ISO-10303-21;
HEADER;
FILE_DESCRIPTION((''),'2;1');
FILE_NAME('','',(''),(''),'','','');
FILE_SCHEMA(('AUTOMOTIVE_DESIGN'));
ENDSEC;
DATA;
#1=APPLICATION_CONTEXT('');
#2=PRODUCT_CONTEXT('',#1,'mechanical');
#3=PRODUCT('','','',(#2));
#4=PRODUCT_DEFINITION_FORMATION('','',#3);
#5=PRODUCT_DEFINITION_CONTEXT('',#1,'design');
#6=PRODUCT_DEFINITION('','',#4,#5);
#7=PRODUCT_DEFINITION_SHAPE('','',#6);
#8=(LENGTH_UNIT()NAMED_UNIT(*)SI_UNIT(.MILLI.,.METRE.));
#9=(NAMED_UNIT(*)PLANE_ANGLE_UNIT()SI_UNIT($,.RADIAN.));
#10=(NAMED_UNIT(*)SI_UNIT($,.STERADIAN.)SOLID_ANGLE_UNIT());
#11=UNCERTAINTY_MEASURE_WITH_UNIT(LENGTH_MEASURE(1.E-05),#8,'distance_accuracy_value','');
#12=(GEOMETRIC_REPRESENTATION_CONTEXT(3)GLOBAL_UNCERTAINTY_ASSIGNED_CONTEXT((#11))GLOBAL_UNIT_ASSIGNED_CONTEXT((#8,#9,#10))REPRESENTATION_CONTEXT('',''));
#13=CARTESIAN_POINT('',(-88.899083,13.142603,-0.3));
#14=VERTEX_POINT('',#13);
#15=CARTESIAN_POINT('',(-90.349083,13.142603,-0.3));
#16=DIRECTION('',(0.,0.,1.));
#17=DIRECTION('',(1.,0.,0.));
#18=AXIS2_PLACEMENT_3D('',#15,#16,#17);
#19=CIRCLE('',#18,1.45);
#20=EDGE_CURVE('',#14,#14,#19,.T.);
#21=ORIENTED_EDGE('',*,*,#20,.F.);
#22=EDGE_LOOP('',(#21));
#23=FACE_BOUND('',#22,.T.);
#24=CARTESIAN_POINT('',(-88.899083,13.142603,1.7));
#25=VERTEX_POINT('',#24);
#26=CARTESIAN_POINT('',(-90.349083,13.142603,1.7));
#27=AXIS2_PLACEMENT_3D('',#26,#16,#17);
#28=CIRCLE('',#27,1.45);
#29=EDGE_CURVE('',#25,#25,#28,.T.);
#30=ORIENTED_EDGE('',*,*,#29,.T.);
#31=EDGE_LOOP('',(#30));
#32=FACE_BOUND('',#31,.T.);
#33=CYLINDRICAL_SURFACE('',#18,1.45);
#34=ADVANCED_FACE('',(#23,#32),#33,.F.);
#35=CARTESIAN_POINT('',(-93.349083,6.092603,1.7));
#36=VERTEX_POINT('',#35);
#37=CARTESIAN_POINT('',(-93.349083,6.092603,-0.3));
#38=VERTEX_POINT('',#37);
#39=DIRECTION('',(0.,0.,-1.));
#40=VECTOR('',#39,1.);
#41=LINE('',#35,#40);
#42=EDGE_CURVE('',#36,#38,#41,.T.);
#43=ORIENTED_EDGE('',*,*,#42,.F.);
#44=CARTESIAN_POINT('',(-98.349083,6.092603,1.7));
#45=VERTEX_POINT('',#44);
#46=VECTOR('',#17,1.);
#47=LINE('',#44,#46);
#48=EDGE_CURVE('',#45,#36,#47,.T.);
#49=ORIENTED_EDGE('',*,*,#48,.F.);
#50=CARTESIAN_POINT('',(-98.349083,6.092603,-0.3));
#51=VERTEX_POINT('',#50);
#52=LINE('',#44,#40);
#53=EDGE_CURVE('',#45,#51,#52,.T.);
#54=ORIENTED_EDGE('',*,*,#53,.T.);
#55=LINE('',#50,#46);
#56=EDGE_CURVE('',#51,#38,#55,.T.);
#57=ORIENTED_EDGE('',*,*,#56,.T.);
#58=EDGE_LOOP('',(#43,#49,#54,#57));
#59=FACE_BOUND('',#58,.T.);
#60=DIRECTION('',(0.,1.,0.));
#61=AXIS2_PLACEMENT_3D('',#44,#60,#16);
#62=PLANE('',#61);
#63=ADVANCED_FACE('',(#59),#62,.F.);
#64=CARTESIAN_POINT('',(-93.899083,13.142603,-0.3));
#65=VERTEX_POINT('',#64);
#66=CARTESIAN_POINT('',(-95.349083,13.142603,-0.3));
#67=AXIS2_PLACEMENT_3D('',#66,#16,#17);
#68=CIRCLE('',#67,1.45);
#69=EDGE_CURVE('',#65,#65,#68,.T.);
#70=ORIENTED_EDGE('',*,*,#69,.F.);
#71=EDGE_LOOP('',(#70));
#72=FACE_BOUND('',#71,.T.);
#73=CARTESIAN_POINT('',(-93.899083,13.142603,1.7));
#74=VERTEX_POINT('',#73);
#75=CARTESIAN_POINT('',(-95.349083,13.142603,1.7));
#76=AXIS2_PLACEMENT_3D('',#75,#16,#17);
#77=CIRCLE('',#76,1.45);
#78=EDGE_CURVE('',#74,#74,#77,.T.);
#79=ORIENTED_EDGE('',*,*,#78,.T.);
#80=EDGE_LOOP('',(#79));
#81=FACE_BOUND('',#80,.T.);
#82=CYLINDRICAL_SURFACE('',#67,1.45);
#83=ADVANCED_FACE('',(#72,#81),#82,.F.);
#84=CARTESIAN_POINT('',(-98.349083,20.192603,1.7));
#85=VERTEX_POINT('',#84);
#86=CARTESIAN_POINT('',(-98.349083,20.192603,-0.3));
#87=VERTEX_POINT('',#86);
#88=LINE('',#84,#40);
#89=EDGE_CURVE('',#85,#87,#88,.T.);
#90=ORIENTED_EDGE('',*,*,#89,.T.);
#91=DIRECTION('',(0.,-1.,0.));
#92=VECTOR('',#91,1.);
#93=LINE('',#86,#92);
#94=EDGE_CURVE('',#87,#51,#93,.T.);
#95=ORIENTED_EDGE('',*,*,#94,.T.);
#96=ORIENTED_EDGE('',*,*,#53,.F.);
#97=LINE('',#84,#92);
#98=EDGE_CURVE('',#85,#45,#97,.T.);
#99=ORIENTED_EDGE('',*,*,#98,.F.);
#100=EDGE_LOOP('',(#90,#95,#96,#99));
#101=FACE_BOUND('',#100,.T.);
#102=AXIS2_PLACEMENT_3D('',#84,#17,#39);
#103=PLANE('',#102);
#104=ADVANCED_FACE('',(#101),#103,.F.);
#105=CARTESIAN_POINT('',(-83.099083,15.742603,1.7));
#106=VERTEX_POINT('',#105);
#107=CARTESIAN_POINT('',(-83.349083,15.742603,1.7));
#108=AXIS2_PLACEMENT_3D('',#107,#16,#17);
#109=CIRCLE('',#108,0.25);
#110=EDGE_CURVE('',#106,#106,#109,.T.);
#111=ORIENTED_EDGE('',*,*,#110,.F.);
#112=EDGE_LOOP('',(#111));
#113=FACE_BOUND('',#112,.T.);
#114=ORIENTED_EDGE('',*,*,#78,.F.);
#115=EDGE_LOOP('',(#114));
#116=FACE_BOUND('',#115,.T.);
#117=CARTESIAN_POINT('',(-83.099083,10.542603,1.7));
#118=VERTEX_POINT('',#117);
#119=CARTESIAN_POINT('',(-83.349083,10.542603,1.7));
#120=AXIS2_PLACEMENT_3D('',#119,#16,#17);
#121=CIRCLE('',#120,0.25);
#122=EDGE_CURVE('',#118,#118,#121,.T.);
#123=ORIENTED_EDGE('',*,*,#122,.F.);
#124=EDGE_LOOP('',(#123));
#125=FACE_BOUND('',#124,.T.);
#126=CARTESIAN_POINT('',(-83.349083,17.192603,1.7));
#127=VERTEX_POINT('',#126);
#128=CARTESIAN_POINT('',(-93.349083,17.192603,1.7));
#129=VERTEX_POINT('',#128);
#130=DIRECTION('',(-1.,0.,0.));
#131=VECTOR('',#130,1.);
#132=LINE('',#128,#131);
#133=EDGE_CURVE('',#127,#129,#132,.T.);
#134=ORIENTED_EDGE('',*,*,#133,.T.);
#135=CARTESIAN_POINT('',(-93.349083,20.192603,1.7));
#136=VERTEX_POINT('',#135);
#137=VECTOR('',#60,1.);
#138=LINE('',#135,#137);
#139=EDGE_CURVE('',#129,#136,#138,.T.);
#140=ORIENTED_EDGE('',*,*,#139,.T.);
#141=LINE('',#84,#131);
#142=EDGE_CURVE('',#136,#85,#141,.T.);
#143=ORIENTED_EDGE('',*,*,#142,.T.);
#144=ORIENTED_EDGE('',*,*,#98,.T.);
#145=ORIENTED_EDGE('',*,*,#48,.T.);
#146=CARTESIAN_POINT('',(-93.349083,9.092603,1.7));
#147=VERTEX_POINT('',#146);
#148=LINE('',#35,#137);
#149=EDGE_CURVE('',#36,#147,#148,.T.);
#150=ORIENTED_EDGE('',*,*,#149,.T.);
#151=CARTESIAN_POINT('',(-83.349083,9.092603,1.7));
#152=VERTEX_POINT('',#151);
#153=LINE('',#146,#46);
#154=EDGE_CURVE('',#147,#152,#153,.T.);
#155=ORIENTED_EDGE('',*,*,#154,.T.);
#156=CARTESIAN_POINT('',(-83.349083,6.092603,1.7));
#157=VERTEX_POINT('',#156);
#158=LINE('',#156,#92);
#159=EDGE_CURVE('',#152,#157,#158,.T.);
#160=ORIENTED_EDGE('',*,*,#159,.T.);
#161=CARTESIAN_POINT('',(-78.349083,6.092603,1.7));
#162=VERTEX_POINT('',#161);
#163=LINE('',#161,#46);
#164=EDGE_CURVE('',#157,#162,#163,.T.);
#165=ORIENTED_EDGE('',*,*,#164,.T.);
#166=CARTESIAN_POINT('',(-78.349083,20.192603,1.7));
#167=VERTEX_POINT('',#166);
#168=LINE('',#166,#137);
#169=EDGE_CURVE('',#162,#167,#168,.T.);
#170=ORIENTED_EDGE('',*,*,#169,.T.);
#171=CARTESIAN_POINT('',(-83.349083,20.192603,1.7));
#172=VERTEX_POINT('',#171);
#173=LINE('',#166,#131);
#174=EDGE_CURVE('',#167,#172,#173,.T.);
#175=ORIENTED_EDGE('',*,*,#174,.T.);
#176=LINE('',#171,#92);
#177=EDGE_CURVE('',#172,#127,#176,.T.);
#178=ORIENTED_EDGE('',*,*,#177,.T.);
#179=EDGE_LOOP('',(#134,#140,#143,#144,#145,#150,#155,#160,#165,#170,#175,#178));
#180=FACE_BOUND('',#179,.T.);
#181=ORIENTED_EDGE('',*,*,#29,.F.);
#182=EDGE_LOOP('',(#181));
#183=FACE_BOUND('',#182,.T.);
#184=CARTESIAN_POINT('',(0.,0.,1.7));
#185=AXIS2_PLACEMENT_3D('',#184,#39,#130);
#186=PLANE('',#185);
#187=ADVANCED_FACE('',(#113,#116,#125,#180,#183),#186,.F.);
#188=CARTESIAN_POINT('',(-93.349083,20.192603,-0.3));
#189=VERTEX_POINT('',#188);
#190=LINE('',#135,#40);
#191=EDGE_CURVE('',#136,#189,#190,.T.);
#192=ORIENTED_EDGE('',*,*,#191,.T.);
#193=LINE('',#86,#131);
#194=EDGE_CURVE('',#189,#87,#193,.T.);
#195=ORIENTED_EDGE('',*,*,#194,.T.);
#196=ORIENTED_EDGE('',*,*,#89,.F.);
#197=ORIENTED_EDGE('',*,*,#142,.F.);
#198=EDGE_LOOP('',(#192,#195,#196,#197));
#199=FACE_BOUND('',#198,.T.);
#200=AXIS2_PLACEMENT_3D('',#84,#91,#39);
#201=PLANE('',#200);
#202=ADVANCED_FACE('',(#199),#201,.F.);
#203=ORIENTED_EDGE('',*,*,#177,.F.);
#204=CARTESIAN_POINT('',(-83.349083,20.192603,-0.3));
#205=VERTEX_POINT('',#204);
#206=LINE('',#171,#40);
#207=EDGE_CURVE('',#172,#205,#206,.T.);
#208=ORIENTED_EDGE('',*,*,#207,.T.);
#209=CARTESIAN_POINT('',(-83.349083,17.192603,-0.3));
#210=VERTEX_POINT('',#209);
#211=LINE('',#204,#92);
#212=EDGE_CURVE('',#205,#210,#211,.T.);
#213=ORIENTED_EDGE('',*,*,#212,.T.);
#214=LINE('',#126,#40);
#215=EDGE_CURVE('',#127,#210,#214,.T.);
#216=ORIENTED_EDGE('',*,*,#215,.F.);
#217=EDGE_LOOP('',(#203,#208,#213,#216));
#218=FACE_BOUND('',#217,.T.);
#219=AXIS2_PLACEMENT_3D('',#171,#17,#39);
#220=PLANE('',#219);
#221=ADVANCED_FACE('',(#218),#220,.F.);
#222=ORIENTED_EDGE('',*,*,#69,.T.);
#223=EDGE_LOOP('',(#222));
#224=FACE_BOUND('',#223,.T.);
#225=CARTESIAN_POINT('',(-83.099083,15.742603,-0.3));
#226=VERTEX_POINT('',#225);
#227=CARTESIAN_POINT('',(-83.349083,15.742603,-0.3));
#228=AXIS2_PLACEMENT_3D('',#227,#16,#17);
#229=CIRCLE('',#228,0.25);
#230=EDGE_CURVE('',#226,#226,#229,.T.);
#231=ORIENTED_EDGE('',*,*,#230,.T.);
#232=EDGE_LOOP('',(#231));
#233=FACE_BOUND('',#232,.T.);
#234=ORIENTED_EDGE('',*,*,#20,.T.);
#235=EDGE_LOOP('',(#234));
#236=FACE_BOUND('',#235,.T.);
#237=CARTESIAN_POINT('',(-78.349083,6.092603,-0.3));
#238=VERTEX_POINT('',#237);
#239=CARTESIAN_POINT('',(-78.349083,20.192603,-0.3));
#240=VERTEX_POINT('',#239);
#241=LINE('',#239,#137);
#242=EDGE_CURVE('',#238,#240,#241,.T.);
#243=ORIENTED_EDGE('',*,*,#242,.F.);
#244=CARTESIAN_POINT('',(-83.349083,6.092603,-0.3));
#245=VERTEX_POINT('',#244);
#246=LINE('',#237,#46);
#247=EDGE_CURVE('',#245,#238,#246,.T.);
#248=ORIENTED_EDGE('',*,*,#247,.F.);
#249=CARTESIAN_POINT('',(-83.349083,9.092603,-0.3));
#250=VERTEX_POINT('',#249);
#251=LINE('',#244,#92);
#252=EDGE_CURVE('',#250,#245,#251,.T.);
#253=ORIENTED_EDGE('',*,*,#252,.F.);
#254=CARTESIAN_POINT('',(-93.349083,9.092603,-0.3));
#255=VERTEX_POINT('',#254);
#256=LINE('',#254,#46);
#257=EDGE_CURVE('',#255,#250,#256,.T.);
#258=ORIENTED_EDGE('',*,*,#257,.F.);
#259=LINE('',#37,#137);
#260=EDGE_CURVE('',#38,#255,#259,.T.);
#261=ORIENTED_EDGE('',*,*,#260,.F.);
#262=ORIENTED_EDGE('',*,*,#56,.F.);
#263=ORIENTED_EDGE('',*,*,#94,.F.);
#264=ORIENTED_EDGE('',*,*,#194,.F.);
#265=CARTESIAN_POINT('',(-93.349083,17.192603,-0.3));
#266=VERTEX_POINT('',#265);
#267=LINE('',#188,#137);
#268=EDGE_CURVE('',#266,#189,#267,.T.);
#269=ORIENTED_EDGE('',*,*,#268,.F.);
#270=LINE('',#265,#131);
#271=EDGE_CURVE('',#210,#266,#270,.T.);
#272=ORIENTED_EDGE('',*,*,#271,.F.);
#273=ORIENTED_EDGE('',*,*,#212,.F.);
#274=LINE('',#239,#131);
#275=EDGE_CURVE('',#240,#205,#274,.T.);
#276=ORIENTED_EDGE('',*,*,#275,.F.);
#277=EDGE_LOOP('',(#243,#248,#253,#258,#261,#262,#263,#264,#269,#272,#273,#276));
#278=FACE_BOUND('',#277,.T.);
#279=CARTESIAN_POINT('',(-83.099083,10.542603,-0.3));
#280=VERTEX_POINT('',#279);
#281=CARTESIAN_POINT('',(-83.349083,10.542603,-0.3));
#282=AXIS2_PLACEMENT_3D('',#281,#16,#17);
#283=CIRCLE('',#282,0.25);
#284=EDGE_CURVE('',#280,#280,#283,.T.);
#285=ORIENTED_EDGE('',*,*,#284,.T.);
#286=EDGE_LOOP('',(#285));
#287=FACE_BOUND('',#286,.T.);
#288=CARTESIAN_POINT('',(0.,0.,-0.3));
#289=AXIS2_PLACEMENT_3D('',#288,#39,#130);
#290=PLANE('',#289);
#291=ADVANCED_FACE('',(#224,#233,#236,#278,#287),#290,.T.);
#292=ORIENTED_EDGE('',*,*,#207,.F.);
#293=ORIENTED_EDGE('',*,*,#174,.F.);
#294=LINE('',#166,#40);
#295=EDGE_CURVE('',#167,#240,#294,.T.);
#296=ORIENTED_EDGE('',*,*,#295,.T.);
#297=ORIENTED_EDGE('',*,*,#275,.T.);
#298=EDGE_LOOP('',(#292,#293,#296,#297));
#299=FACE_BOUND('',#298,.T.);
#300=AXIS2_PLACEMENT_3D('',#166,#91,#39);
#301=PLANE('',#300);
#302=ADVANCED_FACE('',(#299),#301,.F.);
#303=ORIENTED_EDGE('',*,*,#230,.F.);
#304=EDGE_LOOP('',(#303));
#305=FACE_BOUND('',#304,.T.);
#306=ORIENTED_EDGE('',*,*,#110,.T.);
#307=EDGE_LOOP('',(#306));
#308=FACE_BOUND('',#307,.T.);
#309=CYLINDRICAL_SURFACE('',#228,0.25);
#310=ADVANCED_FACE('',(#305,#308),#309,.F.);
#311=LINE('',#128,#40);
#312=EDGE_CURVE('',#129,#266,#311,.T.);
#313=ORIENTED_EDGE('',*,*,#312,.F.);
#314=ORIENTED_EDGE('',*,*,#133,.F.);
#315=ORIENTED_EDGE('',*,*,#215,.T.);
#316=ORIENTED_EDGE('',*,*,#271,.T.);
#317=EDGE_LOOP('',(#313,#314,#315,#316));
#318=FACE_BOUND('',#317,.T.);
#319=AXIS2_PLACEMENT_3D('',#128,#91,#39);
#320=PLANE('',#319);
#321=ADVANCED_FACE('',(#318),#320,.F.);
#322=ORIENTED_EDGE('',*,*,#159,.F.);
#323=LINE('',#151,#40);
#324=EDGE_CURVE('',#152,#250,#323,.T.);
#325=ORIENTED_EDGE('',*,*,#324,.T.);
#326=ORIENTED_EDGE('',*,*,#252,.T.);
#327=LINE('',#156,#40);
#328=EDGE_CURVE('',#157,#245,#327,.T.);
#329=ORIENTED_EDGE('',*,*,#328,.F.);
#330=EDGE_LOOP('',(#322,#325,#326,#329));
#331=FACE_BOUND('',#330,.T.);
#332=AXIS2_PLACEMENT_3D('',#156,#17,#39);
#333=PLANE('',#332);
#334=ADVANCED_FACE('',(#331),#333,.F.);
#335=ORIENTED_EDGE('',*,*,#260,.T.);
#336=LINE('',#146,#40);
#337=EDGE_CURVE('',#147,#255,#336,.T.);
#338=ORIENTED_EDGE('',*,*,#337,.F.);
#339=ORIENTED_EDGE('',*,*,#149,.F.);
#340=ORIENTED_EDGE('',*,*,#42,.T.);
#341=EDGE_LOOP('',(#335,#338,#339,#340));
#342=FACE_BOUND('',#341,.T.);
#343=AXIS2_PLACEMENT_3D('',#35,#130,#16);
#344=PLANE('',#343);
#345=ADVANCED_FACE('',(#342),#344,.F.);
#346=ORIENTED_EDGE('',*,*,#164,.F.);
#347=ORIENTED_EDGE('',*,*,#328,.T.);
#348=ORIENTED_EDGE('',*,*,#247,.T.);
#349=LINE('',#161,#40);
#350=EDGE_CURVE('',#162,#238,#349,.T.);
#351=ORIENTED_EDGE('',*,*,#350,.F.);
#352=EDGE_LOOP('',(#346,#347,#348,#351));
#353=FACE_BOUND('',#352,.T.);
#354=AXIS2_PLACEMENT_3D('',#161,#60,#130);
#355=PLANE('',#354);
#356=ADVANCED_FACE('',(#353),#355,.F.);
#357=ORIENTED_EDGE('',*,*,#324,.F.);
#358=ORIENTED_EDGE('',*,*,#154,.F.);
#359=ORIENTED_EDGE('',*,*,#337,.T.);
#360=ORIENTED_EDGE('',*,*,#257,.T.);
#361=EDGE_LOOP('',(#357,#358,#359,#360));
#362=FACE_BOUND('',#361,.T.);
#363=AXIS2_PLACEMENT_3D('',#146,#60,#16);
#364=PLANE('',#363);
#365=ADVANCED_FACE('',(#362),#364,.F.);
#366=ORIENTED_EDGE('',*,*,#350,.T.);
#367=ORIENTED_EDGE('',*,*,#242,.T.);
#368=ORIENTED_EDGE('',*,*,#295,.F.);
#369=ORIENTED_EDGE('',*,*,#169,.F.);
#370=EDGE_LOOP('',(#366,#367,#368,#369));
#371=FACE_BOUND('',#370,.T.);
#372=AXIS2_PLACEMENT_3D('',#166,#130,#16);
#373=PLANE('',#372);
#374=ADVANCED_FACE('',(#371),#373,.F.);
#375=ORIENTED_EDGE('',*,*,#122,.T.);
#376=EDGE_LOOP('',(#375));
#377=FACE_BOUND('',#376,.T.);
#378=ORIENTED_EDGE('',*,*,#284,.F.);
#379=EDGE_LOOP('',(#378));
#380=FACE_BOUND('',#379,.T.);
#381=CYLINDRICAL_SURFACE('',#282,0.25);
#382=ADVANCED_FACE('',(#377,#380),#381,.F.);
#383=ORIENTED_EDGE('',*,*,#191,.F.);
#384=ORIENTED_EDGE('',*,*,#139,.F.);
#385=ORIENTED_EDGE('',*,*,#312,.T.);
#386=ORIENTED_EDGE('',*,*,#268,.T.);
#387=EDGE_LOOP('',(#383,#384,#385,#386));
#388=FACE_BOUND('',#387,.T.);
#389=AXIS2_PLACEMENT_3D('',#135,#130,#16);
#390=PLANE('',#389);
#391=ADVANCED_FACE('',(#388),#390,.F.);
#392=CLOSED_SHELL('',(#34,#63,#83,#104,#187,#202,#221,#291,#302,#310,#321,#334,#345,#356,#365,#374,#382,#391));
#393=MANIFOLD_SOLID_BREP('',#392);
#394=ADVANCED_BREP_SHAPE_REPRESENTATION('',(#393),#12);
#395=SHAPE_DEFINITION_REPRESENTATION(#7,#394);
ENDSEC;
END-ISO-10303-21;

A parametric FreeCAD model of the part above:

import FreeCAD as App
import Part
import Sketcher

V = App.Vector
Q = App.Units.Quantity


def add_polygon(sketch, points):
    """Adds a closed chain of lines whose ends are joined by coincident constraints."""
    first, n = sketch.GeometryCount, len(points)
    for a, b in zip(points, points[1:] + points[:1]):
        sketch.addGeometry(Part.LineSegment(App.Vector(*a, 0), App.Vector(*b, 0)), False)
    for i in range(n):
        sketch.addConstraint(Sketcher.Constraint("Coincident", first + i, 2, first + (i + 1) % n, 1))

doc = App.newDocument("Part")
body = doc.addObject("PartDesign::Body", "Body")

sketch1 = body.newObject("Sketcher::SketchObject", "Sketch")
sketch1.AttachmentSupport = (doc.getObject("XY_Plane"), [""])
sketch1.MapMode = "FlatFace"
add_polygon(sketch1, [(-83.3, 17.2), (-93.3, 17.2), (-93.3, 20.2), (-98.3, 20.2), (-98.3, 6.1), (-93.3, 6.1), (-93.3, 9.1), (-83.3, 9.1), (-83.3, 6.1), (-78.3, 6.1), (-78.3, 20.2), (-83.3, 20.2)])
sketch1.addConstraint([
    Sketcher.Constraint("Horizontal", 0),
    Sketcher.Constraint("Vertical", 1),
    Sketcher.Constraint("Horizontal", 2),
    Sketcher.Constraint("Vertical", 3),
    Sketcher.Constraint("Horizontal", 4),
    Sketcher.Constraint("Vertical", 5),
    Sketcher.Constraint("Horizontal", 6),
    Sketcher.Constraint("Vertical", 7),
    Sketcher.Constraint("Horizontal", 8),
    Sketcher.Constraint("Vertical", 9),
    Sketcher.Constraint("Horizontal", 10),
    Sketcher.Constraint("Vertical", 11),
    Sketcher.Constraint("Horizontal", 4, 2, 7, 2),
    Sketcher.Constraint("Horizontal", 2, 2, 9, 2),
    Sketcher.Constraint("Vertical", 1, 2, 4, 2),
    Sketcher.Constraint("Vertical", 7, 2, 10, 2),
    Sketcher.Constraint("Equal", 4, 8),
    Sketcher.Constraint("Equal", 1, 5),
    Sketcher.Constraint("DistanceX", 0, 2, 0, 1, Q("10 mm")),
    Sketcher.Constraint("DistanceX", 2, 2, 2, 1, Q("5 mm")),
    Sketcher.Constraint("DistanceY", 1, 1, 1, 2, Q("3 mm")),
    Sketcher.Constraint("DistanceY", 3, 2, 3, 1, Q("14.1 mm")),
    Sketcher.Constraint("DistanceX", 0, 2, -1, 1, Q("93.349083 mm")),
    Sketcher.Constraint("DistanceY", -1, 1, 0, 2, Q("17.192603 mm")),
])
pad1 = body.newObject("PartDesign::Pad", "Pad")
pad1.Profile = sketch1
pad1.Length = 1.7

sketch2 = body.newObject("Sketcher::SketchObject", "Sketch001")
sketch2.AttachmentSupport = (doc.getObject("XY_Plane"), [""])
sketch2.MapMode = "FlatFace"
add_polygon(sketch2, [(-83.3, 17.2), (-93.3, 17.2), (-93.3, 20.2), (-98.3, 20.2), (-98.3, 6.1), (-93.3, 6.1), (-93.3, 9.1), (-83.3, 9.1), (-83.3, 6.1), (-78.3, 6.1), (-78.3, 20.2), (-83.3, 20.2)])
sketch2.addConstraint([
    Sketcher.Constraint("Horizontal", 0),
    Sketcher.Constraint("Vertical", 1),
    Sketcher.Constraint("Horizontal", 2),
    Sketcher.Constraint("Vertical", 3),
    Sketcher.Constraint("Horizontal", 4),
    Sketcher.Constraint("Vertical", 5),
    Sketcher.Constraint("Horizontal", 6),
    Sketcher.Constraint("Vertical", 7),
    Sketcher.Constraint("Horizontal", 8),
    Sketcher.Constraint("Vertical", 9),
    Sketcher.Constraint("Horizontal", 10),
    Sketcher.Constraint("Vertical", 11),
    Sketcher.Constraint("Horizontal", 4, 2, 7, 2),
    Sketcher.Constraint("Horizontal", 2, 2, 9, 2),
    Sketcher.Constraint("Vertical", 1, 2, 4, 2),
    Sketcher.Constraint("Vertical", 7, 2, 10, 2),
    Sketcher.Constraint("Equal", 4, 8),
    Sketcher.Constraint("Equal", 1, 5),
    Sketcher.Constraint("DistanceX", 0, 2, 0, 1, Q("10 mm")),
    Sketcher.Constraint("DistanceX", 2, 2, 2, 1, Q("5 mm")),
    Sketcher.Constraint("DistanceY", 1, 1, 1, 2, Q("3 mm")),
    Sketcher.Constraint("DistanceY", 3, 2, 3, 1, Q("14.1 mm")),
    Sketcher.Constraint("DistanceX", 0, 2, -1, 1, Q("93.349083 mm")),
    Sketcher.Constraint("DistanceY", -1, 1, 0, 2, Q("17.192603 mm")),
])
pad2 = body.newObject("PartDesign::Pad", "Pad001")
pad2.Profile = sketch2
pad2.Length = 0.3
pad2.Reversed = True

sketch3 = body.newObject("Sketcher::SketchObject", "Sketch002")
sketch3.AttachmentSupport = (doc.getObject("XY_Plane"), [""])
sketch3.MapMode = "FlatFace"
sketch3.AttachmentOffset = App.Placement(V(0, 0, 1.7), App.Rotation())
sketch3.addGeometry(Part.Circle(V(-95.3, 13.1, 0), V(0, 0, 1), 1.4), False)
sketch3.addConstraint([
    Sketcher.Constraint("Diameter", 0, Q("2.9 mm")),
    Sketcher.Constraint("DistanceX", 0, 3, -1, 1, Q("95.349083 mm")),
    Sketcher.Constraint("DistanceY", -1, 1, 0, 3, Q("13.142603 mm")),
])
pocket1 = body.newObject("PartDesign::Pocket", "Pocket")
pocket1.Profile = sketch3
pocket1.Length = 2

sketch4 = body.newObject("Sketcher::SketchObject", "Sketch003")
sketch4.AttachmentSupport = (doc.getObject("XY_Plane"), [""])
sketch4.MapMode = "FlatFace"
sketch4.AttachmentOffset = App.Placement(V(0, 0, 1.7), App.Rotation())
sketch4.addGeometry(Part.Circle(V(-90.3, 13.1, 0), V(0, 0, 1), 1.4), False)
sketch4.addConstraint([
    Sketcher.Constraint("Diameter", 0, Q("2.9 mm")),
    Sketcher.Constraint("DistanceX", 0, 3, -1, 1, Q("90.349083 mm")),
    Sketcher.Constraint("DistanceY", -1, 1, 0, 3, Q("13.142603 mm")),
])
pocket2 = body.newObject("PartDesign::Pocket", "Pocket001")
pocket2.Profile = sketch4
pocket2.Length = 2

sketch5 = body.newObject("Sketcher::SketchObject", "Sketch004")
sketch5.AttachmentSupport = (doc.getObject("XY_Plane"), [""])
sketch5.MapMode = "FlatFace"
sketch5.AttachmentOffset = App.Placement(V(0, 0, 1.7), App.Rotation())
sketch5.addGeometry(Part.Circle(V(-83.35, 15.74, 0), V(0, 0, 1), 0.25), False)
sketch5.addConstraint([
    Sketcher.Constraint("Diameter", 0, Q("0.5 mm")),
    Sketcher.Constraint("DistanceX", 0, 3, -1, 1, Q("83.349083 mm")),
    Sketcher.Constraint("DistanceY", -1, 1, 0, 3, Q("15.742603 mm")),
])
pocket3 = body.newObject("PartDesign::Pocket", "Pocket002")
pocket3.Profile = sketch5
pocket3.Length = 2

sketch6 = body.newObject("Sketcher::SketchObject", "Sketch005")
sketch6.AttachmentSupport = (doc.getObject("XY_Plane"), [""])
sketch6.MapMode = "FlatFace"
sketch6.AttachmentOffset = App.Placement(V(0, 0, 1.7), App.Rotation())
sketch6.addGeometry(Part.Circle(V(-83.35, 10.54, 0), V(0, 0, 1), 0.25), False)
sketch6.addConstraint([
    Sketcher.Constraint("Diameter", 0, Q("0.5 mm")),
    Sketcher.Constraint("DistanceX", 0, 3, -1, 1, Q("83.349083 mm")),
    Sketcher.Constraint("DistanceY", -1, 1, 0, 3, Q("10.542603 mm")),
])
pocket4 = body.newObject("PartDesign::Pocket", "Pocket003")
pocket4.Profile = sketch6
pocket4.Length = 2

doc.recompute()
